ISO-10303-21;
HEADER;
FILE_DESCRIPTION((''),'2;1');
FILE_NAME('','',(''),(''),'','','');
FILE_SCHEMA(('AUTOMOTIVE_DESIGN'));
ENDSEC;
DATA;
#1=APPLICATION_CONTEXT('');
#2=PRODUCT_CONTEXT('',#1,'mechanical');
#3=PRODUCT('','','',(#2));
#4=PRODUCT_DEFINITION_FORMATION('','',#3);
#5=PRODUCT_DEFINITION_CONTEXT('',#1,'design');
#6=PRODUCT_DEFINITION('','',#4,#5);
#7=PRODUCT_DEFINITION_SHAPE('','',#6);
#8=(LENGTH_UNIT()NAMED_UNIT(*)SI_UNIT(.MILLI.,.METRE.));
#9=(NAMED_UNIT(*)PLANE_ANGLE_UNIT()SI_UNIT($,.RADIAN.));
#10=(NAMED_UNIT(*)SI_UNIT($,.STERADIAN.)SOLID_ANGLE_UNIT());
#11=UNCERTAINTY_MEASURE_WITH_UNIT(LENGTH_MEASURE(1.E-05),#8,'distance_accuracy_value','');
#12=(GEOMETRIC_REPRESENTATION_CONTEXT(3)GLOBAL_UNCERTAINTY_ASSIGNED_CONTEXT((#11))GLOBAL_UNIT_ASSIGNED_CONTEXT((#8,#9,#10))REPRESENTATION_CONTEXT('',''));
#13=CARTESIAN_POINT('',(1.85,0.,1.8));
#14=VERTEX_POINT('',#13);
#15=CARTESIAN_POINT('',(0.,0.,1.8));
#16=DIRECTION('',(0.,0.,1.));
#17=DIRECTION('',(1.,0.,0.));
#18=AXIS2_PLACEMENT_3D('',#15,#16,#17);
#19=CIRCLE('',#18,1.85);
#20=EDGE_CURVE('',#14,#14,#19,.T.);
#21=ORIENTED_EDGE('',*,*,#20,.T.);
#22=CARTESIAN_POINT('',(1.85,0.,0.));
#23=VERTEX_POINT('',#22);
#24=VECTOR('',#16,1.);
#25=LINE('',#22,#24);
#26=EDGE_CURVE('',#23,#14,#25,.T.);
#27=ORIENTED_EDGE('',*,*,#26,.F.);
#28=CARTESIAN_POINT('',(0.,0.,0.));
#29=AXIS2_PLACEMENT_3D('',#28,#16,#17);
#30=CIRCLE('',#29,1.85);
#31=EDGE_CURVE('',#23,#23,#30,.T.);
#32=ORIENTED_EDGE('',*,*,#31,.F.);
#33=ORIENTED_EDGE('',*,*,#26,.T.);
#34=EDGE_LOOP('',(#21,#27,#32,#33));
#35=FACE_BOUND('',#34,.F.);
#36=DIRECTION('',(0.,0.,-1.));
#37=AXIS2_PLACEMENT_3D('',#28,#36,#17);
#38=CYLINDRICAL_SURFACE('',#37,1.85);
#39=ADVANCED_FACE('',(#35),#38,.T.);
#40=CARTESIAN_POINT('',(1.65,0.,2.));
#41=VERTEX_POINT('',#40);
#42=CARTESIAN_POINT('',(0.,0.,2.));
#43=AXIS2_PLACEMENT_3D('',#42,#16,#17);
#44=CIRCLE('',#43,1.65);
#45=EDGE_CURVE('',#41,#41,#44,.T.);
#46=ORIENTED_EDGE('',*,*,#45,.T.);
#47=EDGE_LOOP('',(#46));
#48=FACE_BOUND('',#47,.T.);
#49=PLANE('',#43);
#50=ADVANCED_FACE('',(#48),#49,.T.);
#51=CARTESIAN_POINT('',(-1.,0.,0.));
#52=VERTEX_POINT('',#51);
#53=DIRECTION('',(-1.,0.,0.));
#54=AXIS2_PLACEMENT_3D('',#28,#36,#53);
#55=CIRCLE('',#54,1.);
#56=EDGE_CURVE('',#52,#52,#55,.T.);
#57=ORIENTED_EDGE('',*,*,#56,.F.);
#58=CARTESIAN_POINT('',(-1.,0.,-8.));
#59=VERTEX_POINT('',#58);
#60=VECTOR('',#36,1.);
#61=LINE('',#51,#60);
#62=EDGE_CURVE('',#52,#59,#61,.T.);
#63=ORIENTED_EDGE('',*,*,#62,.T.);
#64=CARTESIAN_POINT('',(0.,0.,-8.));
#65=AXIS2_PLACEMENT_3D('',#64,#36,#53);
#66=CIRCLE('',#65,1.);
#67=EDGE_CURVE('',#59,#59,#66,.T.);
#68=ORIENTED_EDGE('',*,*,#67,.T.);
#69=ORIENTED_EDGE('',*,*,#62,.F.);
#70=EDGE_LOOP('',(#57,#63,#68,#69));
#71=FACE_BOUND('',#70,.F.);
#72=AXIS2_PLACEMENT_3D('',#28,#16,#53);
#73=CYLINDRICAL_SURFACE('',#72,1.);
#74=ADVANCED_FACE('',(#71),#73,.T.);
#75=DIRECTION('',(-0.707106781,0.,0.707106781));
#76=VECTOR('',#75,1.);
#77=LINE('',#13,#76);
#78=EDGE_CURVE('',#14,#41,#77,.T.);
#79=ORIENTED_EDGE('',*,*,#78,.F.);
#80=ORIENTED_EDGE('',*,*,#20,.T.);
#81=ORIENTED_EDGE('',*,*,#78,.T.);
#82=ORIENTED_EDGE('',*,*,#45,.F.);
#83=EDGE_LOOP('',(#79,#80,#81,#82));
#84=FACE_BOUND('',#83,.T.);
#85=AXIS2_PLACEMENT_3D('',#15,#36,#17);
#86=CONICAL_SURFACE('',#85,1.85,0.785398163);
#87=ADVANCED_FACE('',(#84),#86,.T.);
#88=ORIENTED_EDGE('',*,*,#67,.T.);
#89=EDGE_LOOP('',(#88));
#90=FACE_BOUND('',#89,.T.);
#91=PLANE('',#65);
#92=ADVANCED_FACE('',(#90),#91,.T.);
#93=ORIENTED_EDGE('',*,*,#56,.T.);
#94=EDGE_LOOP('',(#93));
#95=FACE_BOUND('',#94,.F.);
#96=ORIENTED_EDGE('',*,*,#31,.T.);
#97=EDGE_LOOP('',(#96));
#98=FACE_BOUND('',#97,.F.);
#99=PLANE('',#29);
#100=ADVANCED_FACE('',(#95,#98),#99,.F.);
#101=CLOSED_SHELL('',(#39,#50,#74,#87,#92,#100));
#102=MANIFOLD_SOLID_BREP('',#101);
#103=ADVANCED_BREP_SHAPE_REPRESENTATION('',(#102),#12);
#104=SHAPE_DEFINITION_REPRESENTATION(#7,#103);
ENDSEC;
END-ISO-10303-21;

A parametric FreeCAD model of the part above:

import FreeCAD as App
import Part
import Sketcher


def edges_at(feature, points):
    """Names of the edges that pass closest to the given points."""
    edges = feature.Shape.Edges
    near = lambda p: min(range(len(edges)), key=lambda i: edges[i].distToShape(Part.Vertex(*p))[0])
    return sorted({f"Edge{near(p) + 1}" for p in points})

doc = App.newDocument("Part")
body = doc.addObject("PartDesign::Body", "Body")

# Sketch on XY plane
sketch1 = body.newObject("Sketcher::SketchObject", "Sketch")
sketch1.AttachmentSupport = (doc.getObject("XY_Plane"), [""])
sketch1.MapMode = "FlatFace"
sketch1.addGeometry(Part.Circle(App.Vector(0, 0, 0), App.Vector(0, 0, 1), 1.9), False)
sketch1.addConstraint(Sketcher.Constraint("Coincident", 0, 3, -1, 1))
sketch1.addConstraint(Sketcher.Constraint("Diameter", 0, 3.7))
pad1 = body.newObject("PartDesign::Pad", "Pad")
pad1.Profile = sketch1
pad1.Length = 2

# Sketch on XY plane
sketch2 = body.newObject("Sketcher::SketchObject", "Sketch001")
sketch2.AttachmentSupport = (doc.getObject("XY_Plane"), [""])
sketch2.MapMode = "FlatFace"
sketch2.addGeometry(Part.Circle(App.Vector(0, 0, 0), App.Vector(0, 0, 1), 1), False)
sketch2.addConstraint(Sketcher.Constraint("Coincident", 0, 3, -1, 1))
sketch2.addConstraint(Sketcher.Constraint("Diameter", 0, 2.0))
pad2 = body.newObject("PartDesign::Pad", "Pad001")
pad2.Profile = sketch2
pad2.Length = 8
pad2.Reversed = True
doc.recompute()

chamfer = body.newObject("PartDesign::Chamfer", "Chamfer")
chamfer.Base = (pad2, edges_at(pad2, [(-1.85, 0, 2)]))
chamfer.Size = 0.2

doc.recompute()
